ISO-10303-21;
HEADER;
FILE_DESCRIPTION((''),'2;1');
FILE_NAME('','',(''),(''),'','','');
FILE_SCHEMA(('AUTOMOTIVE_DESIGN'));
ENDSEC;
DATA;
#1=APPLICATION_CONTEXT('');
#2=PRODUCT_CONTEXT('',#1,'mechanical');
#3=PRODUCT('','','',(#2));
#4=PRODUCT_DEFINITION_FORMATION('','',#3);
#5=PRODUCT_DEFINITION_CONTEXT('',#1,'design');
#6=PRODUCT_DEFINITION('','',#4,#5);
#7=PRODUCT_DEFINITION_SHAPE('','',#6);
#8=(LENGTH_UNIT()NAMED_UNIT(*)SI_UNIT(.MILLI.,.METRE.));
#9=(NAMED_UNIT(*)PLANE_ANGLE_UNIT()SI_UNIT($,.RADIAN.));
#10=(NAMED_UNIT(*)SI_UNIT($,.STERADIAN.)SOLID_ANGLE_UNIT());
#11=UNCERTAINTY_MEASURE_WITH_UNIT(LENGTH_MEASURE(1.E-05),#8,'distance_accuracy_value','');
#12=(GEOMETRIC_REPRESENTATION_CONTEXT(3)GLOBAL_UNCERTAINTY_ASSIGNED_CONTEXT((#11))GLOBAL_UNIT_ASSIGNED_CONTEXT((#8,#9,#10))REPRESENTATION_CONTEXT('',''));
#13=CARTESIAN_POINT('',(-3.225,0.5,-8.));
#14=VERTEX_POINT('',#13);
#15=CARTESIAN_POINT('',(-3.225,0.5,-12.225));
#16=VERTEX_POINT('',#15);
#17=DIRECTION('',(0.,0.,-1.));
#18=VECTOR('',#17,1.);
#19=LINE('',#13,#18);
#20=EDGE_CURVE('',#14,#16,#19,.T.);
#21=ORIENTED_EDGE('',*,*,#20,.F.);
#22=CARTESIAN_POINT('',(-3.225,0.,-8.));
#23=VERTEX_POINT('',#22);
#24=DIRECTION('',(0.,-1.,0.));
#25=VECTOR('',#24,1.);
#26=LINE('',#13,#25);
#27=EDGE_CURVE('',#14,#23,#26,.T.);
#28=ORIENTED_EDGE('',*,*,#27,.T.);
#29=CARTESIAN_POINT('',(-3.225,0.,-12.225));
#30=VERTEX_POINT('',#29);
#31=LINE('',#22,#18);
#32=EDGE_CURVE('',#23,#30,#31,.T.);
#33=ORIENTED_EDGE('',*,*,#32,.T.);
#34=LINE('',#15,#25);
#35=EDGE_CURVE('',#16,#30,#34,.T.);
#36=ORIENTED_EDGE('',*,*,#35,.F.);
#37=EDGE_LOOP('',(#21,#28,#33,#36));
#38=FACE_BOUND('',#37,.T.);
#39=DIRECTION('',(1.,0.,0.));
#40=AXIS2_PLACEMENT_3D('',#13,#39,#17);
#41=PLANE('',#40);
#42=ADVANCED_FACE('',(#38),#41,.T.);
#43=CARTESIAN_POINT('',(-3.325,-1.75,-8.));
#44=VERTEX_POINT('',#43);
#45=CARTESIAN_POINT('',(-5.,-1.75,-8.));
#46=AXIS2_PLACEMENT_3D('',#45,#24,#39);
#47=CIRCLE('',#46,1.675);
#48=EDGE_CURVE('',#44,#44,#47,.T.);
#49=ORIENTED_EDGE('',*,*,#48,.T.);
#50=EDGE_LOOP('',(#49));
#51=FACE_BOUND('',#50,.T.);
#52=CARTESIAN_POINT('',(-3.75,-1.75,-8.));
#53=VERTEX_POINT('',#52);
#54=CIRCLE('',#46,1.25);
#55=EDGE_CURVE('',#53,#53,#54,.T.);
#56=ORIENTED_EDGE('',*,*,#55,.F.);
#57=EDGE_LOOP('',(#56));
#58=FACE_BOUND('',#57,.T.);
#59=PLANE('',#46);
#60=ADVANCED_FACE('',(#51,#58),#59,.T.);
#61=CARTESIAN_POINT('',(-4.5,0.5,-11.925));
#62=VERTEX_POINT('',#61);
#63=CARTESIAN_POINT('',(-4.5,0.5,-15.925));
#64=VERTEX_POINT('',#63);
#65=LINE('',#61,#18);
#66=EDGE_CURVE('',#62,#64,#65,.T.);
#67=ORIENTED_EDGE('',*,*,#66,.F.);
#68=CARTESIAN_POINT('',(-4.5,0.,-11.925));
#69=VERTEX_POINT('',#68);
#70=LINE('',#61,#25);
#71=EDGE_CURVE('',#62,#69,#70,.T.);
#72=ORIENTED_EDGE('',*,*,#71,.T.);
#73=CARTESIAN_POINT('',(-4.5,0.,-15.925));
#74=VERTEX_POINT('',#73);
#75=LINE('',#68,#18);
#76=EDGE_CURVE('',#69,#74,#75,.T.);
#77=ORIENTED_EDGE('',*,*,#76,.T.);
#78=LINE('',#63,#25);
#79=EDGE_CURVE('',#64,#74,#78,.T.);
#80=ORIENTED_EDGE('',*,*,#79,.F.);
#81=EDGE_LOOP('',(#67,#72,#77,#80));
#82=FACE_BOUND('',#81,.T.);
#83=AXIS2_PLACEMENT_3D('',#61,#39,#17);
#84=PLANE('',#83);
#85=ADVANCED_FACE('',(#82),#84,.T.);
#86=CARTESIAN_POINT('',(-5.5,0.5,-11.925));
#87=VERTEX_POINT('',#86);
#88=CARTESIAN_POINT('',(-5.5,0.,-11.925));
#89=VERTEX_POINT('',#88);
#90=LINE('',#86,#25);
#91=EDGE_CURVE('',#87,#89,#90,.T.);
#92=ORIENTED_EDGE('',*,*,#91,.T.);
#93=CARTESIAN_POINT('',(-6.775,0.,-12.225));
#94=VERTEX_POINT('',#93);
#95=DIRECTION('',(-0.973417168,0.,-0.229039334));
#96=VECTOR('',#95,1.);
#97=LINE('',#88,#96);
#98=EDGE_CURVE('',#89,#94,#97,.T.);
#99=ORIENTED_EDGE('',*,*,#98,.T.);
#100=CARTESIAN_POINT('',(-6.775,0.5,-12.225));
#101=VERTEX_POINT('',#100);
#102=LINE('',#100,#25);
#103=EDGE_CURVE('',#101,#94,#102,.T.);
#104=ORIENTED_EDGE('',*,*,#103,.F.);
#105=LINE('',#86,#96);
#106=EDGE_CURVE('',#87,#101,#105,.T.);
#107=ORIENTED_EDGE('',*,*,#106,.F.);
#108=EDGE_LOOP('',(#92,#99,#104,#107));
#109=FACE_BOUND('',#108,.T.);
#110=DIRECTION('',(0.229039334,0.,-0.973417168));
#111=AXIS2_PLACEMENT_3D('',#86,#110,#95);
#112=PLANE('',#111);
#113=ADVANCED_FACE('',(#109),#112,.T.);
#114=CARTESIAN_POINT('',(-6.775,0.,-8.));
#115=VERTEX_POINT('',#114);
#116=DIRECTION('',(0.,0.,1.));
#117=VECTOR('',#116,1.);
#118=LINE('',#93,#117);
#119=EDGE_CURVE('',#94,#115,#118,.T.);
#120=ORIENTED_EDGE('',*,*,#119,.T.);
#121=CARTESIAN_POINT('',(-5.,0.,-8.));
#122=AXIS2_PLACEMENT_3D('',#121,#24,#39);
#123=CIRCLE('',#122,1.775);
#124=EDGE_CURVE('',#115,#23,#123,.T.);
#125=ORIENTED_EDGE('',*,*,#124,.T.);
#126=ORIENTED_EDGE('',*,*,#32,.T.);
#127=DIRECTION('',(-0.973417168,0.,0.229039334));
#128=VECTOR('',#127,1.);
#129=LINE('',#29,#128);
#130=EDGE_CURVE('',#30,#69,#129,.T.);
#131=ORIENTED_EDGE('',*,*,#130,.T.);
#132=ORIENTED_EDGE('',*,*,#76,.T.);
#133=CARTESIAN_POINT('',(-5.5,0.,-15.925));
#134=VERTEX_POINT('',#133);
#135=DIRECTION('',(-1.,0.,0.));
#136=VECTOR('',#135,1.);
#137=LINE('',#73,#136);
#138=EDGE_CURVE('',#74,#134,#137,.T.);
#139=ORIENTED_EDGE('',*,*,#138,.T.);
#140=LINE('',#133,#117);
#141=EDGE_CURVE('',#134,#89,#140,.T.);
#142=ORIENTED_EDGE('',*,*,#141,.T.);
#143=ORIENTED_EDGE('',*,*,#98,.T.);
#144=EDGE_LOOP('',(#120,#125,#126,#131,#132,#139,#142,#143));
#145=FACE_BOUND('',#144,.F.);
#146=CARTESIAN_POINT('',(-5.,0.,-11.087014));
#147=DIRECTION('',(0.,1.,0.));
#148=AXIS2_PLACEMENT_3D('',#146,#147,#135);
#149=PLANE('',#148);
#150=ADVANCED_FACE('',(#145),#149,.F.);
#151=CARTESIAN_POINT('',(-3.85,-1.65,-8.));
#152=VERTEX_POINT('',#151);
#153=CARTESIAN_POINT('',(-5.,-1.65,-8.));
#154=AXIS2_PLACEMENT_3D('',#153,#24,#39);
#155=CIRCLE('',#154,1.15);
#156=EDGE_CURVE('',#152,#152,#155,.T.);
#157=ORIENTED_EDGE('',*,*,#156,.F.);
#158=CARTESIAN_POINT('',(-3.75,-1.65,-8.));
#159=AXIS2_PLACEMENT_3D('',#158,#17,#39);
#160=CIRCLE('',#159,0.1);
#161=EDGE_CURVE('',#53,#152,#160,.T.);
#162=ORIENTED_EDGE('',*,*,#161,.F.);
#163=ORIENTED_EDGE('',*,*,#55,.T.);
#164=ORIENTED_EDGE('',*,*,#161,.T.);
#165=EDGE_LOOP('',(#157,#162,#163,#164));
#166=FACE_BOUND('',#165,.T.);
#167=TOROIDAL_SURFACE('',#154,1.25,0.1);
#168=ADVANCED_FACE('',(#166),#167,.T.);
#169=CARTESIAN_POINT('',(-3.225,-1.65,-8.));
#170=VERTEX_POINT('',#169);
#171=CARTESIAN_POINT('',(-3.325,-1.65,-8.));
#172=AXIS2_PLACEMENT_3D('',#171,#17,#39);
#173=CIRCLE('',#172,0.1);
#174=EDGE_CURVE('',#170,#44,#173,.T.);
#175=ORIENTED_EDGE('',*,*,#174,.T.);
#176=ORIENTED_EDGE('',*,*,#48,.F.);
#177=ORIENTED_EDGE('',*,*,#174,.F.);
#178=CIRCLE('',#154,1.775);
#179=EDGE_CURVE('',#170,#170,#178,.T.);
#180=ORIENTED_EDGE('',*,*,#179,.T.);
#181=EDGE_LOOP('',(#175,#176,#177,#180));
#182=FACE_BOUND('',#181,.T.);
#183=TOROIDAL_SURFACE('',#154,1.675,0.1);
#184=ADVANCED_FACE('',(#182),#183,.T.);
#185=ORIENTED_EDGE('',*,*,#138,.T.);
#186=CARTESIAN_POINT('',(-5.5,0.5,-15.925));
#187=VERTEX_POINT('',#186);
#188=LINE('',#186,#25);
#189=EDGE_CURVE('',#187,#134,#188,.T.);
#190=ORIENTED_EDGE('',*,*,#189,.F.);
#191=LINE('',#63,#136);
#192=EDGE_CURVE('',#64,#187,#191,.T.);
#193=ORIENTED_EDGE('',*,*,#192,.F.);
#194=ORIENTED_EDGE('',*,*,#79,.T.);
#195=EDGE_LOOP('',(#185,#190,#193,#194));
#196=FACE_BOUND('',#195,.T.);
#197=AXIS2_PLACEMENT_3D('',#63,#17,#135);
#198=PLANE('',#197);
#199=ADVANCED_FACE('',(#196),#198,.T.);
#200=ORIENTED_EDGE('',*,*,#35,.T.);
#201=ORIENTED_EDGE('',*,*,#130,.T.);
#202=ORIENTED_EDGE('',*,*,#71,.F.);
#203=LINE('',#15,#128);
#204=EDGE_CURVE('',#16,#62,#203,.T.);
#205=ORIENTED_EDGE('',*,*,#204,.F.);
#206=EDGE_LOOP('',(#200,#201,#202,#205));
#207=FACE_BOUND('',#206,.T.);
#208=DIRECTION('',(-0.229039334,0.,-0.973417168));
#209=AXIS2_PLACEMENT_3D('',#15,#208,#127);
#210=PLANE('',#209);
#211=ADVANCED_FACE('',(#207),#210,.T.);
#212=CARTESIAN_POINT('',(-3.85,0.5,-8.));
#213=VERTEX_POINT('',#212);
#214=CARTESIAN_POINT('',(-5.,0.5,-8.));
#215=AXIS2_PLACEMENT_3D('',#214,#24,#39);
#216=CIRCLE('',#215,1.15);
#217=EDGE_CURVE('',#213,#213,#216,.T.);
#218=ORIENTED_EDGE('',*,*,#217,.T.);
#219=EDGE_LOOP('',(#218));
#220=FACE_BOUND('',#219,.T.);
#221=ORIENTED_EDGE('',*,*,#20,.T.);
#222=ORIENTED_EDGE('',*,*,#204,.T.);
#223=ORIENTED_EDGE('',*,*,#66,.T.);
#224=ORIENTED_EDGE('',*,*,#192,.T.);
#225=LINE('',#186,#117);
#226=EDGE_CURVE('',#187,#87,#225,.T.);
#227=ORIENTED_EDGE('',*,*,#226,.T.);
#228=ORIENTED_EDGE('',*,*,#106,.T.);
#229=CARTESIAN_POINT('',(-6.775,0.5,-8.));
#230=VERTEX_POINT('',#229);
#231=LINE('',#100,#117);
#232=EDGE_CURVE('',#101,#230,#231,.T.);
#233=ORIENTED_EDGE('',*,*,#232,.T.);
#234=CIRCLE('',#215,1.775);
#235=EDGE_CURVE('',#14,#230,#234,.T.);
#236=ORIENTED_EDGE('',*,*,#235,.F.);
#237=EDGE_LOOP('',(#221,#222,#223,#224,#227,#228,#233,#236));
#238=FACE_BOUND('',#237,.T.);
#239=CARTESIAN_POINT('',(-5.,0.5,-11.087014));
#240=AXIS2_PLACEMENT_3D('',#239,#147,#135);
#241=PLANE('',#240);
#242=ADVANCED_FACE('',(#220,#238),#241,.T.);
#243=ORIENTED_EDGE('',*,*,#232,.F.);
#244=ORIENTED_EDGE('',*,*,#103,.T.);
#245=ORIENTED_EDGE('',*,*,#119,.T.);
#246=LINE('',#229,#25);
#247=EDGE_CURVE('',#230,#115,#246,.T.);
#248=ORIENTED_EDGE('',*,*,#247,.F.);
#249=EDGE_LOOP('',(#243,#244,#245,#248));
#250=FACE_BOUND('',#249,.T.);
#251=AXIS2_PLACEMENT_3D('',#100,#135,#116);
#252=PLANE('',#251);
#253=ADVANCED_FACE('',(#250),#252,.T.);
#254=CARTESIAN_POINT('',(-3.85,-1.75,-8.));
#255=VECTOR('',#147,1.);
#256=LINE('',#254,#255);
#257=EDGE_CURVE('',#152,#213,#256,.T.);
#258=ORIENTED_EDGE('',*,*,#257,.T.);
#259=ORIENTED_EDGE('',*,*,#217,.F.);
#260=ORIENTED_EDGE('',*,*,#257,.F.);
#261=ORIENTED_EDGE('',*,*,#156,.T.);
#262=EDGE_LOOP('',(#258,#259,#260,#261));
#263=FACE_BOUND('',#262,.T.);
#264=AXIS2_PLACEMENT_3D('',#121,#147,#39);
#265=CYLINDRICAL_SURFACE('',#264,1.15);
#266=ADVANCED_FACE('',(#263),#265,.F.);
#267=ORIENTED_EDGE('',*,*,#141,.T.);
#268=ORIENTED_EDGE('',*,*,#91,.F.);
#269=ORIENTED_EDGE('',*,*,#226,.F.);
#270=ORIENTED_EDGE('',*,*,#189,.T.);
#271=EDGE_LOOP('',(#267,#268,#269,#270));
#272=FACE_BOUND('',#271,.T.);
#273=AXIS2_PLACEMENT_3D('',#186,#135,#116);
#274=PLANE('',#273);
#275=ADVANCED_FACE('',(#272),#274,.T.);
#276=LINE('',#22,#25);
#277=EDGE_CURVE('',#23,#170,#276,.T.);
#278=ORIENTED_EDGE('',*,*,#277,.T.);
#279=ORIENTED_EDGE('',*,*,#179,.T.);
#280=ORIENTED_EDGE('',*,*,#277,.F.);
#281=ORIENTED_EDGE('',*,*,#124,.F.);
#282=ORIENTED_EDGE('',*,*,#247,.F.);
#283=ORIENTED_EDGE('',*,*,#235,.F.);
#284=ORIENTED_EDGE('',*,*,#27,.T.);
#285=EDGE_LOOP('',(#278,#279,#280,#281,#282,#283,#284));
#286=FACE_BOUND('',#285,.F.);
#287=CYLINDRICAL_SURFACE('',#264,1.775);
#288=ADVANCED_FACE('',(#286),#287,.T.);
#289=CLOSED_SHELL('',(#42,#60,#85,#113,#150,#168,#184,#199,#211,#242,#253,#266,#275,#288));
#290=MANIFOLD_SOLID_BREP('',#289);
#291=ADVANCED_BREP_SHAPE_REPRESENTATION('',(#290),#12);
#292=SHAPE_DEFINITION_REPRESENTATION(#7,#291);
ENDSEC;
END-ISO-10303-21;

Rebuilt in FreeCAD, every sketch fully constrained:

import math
import FreeCAD as App
import Part
import Sketcher
Q = App.Units.Quantity


def edges_at(feature, points):
    """Names of the edges that pass closest to the given points."""
    edges = feature.Shape.Edges
    near = lambda p: min(range(len(edges)), key=lambda i: edges[i].distToShape(Part.Vertex(*p))[0])
    return sorted({f"Edge{near(p) + 1}" for p in points})

doc = App.newDocument("Part")
body = doc.addObject("PartDesign::Body", "Body")

sketch1 = body.newObject("Sketcher::SketchObject", "Sketch")
sketch1.AttachmentSupport = (doc.getObject("XZ_Plane"), [""])
sketch1.MapMode = "FlatFace"
sketch1.addGeometry(Part.LineSegment(App.Vector(1.8, -4.2, 0), App.Vector(1.8, 0, 0)), False)
sketch1.addGeometry(Part.ArcOfCircle(Part.Circle(App.Vector(0, 0, 0), App.Vector(0, 0, 1), 1.8), math.radians(0), math.radians(180)), False)
sketch1.addGeometry(Part.LineSegment(App.Vector(-1.8, 0, 0), App.Vector(-1.8, -4.2, 0)), False)
sketch1.addGeometry(Part.LineSegment(App.Vector(-1.8, -4.2, 0), App.Vector(-0.5, -3.9, 0)), False)
sketch1.addGeometry(Part.LineSegment(App.Vector(-0.5, -3.9, 0), App.Vector(-0.5, -7.9, 0)), False)
sketch1.addGeometry(Part.LineSegment(App.Vector(-0.5, -7.9, 0), App.Vector(0.5, -7.9, 0)), False)
sketch1.addGeometry(Part.LineSegment(App.Vector(0.5, -7.9, 0), App.Vector(0.5, -3.9, 0)), False)
sketch1.addGeometry(Part.LineSegment(App.Vector(0.5, -3.9, 0), App.Vector(1.8, -4.2, 0)), False)
sketch1.addGeometry(Part.Circle(App.Vector(0, 0, 0), App.Vector(0, 0, 1), 1.1), False)
sketch1.addConstraint(Sketcher.Constraint("Tangent", 0, 2, 1, 1))
sketch1.addConstraint(Sketcher.Constraint("Tangent", 1, 2, 2, 1))
sketch1.addConstraint(Sketcher.Constraint("Coincident", 2, 2, 3, 1))
sketch1.addConstraint(Sketcher.Constraint("Coincident", 3, 2, 4, 1))
sketch1.addConstraint(Sketcher.Constraint("Coincident", 4, 2, 5, 1))
sketch1.addConstraint(Sketcher.Constraint("Coincident", 5, 2, 6, 1))
sketch1.addConstraint(Sketcher.Constraint("Coincident", 6, 2, 7, 1))
sketch1.addConstraint(Sketcher.Constraint("Coincident", 7, 2, 0, 1))
sketch1.addConstraint(Sketcher.Constraint("Vertical", 0))
sketch1.addConstraint(Sketcher.Constraint("Vertical", 2))
sketch1.addConstraint(Sketcher.Constraint("Vertical", 4))
sketch1.addConstraint(Sketcher.Constraint("Horizontal", 5))
sketch1.addConstraint(Sketcher.Constraint("Vertical", 6))
sketch1.addConstraint(Sketcher.Constraint("Coincident", 1, 3, -1, 1))
sketch1.addConstraint(Sketcher.Constraint("Coincident", 8, 3, -1, 1))
sketch1.addConstraint(Sketcher.Constraint("Symmetric", 3, 2, 6, 2, -2))
sketch1.addConstraint(Sketcher.Constraint("Horizontal", 2, 2, 7, 2))
sketch1.addConstraint(Sketcher.Constraint("Diameter", 8, Q("2.3 mm")))
sketch1.addConstraint(Sketcher.Constraint("DistanceX", 5, 1, 5, 2, Q("1 mm")))
sketch1.addConstraint(Sketcher.Constraint("DistanceY", 4, 2, 4, 1, Q("4 mm")))
sketch1.addConstraint(Sketcher.Constraint("Radius", 1, Q("1.775 mm")))
sketch1.addConstraint(Sketcher.Constraint("DistanceY", 2, 2, 3, 2, Q("0.3 mm")))
sketch1.addConstraint(Sketcher.Constraint("DistanceY", 0, 1, 0, 2, Q("4.225 mm")))
pad1 = body.newObject("PartDesign::Pad", "Pad")
pad1.Profile = sketch1
pad1.Length = 0.5

sketch2 = body.newObject("Sketcher::SketchObject", "Sketch001")
sketch2.AttachmentSupport = (doc.getObject("XZ_Plane"), [""])
sketch2.MapMode = "FlatFace"
sketch2.AttachmentOffset = App.Placement(App.Vector(0, 0, 0.5), App.Rotation())
sketch2.addGeometry(Part.Circle(App.Vector(0, 0, 0), App.Vector(0, 0, 1), 1.8), False)
sketch2.addGeometry(Part.Circle(App.Vector(0, 0, 0), App.Vector(0, 0, 1), 1.1), False)
sketch2.addConstraint(Sketcher.Constraint("Coincident", 0, 3, -1, 1))
sketch2.addConstraint(Sketcher.Constraint("Coincident", 1, 3, -1, 1))
sketch2.addConstraint(Sketcher.Constraint("Diameter", 1, Q("2.3 mm")))
sketch2.addConstraint(Sketcher.Constraint("Diameter", 0, Q("3.55 mm")))
pad2 = body.newObject("PartDesign::Pad", "Pad001")
pad2.Profile = sketch2
pad2.Length = 1.75
doc.recompute()

fillet = body.newObject("PartDesign::Fillet", "Fillet")
fillet.Base = (pad2, edges_at(pad2, [(-1.775, -2.25, 0), (-1.15, -2.25, 0)]))
fillet.Radius = 0.1
body2 = doc.addObject("PartDesign::Body", "Body001")
doc.recompute()

body.Placement = App.Placement(App.Vector(-5, 0.5, -8), App.Rotation(App.Vector(0, 0, 1), 0))
boolean = body2.newObject("PartDesign::Boolean", "Boolean")
boolean.Type = "Fuse"
boolean.addObjects([body])

doc.recompute()
